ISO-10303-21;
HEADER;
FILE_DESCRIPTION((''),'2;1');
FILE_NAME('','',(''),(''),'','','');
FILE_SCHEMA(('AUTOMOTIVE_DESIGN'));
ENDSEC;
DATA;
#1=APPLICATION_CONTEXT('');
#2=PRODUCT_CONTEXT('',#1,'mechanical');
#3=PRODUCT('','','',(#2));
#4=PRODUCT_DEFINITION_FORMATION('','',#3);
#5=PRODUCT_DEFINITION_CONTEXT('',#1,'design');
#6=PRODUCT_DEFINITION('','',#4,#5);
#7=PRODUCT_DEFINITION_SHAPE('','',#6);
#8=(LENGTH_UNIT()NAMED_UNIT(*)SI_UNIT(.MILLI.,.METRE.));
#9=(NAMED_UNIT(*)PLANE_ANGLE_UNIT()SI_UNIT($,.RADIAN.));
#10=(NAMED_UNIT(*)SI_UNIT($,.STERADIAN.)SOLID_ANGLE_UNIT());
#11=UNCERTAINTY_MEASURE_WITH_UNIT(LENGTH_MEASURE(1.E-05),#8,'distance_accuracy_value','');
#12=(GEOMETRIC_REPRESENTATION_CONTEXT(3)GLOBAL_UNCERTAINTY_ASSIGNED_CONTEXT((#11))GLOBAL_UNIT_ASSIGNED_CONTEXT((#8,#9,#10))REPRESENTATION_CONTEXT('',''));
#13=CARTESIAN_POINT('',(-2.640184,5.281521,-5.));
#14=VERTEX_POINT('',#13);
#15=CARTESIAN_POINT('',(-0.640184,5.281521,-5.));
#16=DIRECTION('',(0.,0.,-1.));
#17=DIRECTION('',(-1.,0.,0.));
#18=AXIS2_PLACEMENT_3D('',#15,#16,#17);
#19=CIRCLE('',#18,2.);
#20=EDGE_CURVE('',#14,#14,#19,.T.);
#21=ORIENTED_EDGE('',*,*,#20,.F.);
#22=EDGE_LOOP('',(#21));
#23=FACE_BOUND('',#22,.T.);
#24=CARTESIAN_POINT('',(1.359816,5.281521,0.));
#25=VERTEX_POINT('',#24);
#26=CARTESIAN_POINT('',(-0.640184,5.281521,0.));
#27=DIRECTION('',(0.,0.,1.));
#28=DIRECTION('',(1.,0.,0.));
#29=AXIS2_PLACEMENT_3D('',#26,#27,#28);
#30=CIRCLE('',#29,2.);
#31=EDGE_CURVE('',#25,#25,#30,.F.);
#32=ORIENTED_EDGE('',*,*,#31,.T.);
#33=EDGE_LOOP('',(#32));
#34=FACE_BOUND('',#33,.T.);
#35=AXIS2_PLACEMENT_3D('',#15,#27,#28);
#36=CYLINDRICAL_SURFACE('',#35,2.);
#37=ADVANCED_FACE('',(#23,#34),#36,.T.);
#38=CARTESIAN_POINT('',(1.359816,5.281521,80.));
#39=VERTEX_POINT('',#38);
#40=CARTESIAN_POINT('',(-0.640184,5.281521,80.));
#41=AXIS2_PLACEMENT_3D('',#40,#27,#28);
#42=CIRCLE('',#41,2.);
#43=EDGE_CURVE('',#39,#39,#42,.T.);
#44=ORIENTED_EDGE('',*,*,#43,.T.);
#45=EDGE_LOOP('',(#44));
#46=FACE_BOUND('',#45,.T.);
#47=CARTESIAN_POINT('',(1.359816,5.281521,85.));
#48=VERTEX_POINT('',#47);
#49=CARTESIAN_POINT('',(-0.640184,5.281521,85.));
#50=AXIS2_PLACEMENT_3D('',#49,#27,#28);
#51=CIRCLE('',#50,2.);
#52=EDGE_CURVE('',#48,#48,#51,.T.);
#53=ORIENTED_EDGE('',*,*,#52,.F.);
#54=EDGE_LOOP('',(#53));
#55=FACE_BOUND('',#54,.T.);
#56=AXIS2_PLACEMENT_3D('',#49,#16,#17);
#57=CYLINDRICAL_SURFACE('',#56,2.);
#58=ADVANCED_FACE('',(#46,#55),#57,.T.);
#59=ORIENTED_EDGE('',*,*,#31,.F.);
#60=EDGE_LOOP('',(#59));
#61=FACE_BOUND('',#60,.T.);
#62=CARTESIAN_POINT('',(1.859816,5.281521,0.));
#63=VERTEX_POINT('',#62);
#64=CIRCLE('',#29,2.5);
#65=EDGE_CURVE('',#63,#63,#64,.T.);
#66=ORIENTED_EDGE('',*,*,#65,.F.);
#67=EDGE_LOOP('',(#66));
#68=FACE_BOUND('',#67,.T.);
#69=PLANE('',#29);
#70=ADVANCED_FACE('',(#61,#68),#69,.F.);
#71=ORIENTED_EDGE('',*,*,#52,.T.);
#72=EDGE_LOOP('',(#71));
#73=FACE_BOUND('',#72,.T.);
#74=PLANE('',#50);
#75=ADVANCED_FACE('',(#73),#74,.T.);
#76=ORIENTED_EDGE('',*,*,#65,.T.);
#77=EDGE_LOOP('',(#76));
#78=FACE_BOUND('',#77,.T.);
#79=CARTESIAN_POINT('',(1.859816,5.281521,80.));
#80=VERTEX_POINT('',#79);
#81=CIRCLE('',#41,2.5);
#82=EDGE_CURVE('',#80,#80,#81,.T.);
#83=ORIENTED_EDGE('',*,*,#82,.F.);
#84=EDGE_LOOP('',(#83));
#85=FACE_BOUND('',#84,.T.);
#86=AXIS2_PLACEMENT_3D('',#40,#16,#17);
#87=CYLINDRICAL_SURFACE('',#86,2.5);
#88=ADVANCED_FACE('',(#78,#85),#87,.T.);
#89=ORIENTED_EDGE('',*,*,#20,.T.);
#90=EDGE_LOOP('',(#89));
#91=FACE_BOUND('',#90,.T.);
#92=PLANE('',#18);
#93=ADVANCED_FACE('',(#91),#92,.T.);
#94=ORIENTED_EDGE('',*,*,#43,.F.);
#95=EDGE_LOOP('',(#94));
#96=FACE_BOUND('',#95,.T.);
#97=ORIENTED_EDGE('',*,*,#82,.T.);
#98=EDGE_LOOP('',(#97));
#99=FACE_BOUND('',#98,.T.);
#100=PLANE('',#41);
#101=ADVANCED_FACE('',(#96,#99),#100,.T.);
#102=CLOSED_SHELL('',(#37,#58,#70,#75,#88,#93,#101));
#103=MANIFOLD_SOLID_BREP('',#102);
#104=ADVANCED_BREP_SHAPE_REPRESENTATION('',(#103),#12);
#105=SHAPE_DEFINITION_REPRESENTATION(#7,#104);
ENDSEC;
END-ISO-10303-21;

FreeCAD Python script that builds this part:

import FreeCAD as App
import Part
import Sketcher
Q = App.Units.Quantity

doc = App.newDocument("Part")
body = doc.addObject("PartDesign::Body", "Body")

sketch1 = doc.addObject("Sketcher::SketchObject", "Sketch")
body.addObject(sketch1)
sketch1.AttachmentSupport = (doc.XY_Plane, [""])
sketch1.MapMode = "FlatFace"
sketch1.addGeometry(Part.Circle(App.Vector(-0.640184, 5.281521, 0), App.Vector(0, 0, 1), 2.5), False)
sketch1.addConstraint(Sketcher.Constraint("Diameter", 0, Q("5 mm")))
sketch1.addConstraint(Sketcher.Constraint("DistanceY", -1, 1, 0, 3, Q("5.281521 mm")))
sketch1.addConstraint(Sketcher.Constraint("DistanceX", 0, 3, -1, 1, Q("0.640184 mm")))
pad1 = doc.addObject("PartDesign::Pad", "Pad")
body.addObject(pad1)
pad1.Profile = sketch1
pad1.Length = 80

sketch2 = doc.addObject("Sketcher::SketchObject", "Sketch001")
body.addObject(sketch2)
sketch2.AttachmentSupport = (doc.XY_Plane, [""])
sketch2.MapMode = "FlatFace"
sketch2.AttachmentOffset = App.Placement(App.Vector(0, 0, 80), App.Rotation())
sketch2.addGeometry(Part.Circle(App.Vector(-0.640184, 5.281521, 0), App.Vector(0, 0, 1), 2), False)
sketch2.addConstraint(Sketcher.Constraint("Diameter", 0, Q("4 mm")))
sketch2.addConstraint(Sketcher.Constraint("DistanceY", -1, 1, 0, 3, Q("5.281521 mm")))
sketch2.addConstraint(Sketcher.Constraint("DistanceX", 0, 3, -1, 1, Q("0.640184 mm")))
pad2 = doc.addObject("PartDesign::Pad", "Pad001")
body.addObject(pad2)
pad2.Profile = sketch2
pad2.Length = 5

sketch3 = doc.addObject("Sketcher::SketchObject", "Sketch002")
body.addObject(sketch3)
sketch3.AttachmentSupport = (doc.XY_Plane, [""])
sketch3.MapMode = "FlatFace"
sketch3.AttachmentOffset = App.Placement(App.Vector(0, 0, -5), App.Rotation())
sketch3.addGeometry(Part.Circle(App.Vector(-0.640184, 5.281521, 0), App.Vector(0, 0, 1), 2), False)
sketch3.addConstraint(Sketcher.Constraint("Diameter", 0, Q("4 mm")))
sketch3.addConstraint(Sketcher.Constraint("DistanceY", -1, 1, 0, 3, Q("5.281521 mm")))
sketch3.addConstraint(Sketcher.Constraint("DistanceX", 0, 3, -1, 1, Q("0.640184 mm")))
pad3 = doc.addObject("PartDesign::Pad", "Pad002")
body.addObject(pad3)
pad3.Profile = sketch3
pad3.Length = 5

doc.recompute()
